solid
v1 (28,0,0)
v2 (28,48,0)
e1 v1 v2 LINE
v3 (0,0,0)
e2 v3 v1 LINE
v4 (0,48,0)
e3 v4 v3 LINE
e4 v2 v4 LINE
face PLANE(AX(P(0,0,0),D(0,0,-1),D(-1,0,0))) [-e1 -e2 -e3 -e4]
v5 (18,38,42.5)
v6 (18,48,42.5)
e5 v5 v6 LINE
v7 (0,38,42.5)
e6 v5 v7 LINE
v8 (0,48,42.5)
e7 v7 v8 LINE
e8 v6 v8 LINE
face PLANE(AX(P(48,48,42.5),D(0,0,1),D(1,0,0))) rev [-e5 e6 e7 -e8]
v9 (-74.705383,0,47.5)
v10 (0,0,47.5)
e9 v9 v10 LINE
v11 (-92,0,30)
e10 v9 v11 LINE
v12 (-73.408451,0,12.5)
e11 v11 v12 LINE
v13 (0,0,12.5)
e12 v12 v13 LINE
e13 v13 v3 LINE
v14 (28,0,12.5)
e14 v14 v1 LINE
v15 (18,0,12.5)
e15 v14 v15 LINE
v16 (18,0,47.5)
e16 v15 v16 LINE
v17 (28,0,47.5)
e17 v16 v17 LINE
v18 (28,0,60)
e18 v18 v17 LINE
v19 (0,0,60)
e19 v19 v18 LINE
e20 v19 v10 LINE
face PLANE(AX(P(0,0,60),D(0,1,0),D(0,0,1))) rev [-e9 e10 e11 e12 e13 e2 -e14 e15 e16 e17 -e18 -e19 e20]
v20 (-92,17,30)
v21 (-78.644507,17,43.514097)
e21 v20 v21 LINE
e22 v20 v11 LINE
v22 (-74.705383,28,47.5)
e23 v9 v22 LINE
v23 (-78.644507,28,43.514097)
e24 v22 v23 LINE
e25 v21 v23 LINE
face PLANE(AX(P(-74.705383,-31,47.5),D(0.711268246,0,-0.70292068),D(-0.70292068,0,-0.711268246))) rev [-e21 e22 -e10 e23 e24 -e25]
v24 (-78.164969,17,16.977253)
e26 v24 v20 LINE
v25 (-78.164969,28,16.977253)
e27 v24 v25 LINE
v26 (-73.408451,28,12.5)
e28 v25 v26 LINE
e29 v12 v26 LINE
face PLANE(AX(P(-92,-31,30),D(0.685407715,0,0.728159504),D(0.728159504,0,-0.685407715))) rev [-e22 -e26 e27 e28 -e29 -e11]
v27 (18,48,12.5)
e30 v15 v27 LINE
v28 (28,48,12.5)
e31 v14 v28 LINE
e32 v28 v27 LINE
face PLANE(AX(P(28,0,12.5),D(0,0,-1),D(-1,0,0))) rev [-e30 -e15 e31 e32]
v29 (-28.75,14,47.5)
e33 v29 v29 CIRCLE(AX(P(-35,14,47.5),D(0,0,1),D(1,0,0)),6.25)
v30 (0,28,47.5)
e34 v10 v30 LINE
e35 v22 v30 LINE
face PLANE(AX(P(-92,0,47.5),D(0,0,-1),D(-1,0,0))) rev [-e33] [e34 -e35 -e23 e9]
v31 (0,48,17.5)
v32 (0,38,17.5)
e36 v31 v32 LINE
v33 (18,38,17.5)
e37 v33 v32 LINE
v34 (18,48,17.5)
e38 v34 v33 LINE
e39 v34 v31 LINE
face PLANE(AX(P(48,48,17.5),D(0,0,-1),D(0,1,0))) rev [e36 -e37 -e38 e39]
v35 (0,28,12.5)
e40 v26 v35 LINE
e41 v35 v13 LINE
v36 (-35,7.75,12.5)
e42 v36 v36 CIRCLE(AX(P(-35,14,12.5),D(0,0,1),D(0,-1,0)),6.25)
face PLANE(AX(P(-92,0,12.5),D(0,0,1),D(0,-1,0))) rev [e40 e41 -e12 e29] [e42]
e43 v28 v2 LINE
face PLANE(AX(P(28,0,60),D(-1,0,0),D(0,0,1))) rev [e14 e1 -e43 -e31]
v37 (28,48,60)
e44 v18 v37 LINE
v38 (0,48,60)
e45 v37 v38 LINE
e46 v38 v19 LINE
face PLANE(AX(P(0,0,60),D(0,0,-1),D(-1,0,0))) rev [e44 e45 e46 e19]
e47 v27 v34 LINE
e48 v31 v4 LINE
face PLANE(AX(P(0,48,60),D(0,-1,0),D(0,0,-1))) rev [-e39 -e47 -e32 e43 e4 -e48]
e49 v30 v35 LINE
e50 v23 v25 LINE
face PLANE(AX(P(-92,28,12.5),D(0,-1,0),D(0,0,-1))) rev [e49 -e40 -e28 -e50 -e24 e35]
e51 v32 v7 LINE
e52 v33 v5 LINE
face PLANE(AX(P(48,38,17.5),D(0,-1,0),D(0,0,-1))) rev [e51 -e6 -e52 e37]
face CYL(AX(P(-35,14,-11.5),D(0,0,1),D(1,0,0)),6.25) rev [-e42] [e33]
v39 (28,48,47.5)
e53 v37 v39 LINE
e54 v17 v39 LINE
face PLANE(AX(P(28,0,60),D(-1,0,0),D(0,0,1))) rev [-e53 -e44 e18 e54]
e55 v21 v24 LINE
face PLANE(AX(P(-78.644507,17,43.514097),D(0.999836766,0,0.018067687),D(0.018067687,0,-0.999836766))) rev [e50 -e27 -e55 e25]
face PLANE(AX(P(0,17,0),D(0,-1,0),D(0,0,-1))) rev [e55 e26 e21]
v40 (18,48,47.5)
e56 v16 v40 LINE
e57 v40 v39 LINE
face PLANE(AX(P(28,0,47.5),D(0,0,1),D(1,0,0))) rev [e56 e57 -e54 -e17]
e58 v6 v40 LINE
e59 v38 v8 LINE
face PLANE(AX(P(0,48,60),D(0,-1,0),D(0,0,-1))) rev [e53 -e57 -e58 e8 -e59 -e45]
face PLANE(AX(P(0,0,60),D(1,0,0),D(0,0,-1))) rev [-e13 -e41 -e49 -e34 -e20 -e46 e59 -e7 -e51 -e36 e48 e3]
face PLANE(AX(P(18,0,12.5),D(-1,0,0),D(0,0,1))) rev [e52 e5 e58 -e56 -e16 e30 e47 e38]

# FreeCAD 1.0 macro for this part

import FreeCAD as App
import Part
import Sketcher
Q = App.Units.Quantity


def add_polygon(sketch, points):
    """Adds a closed chain of lines whose ends are joined by coincident constraints."""
    first, n = sketch.GeometryCount, len(points)
    for a, b in zip(points, points[1:] + points[:1]):
        sketch.addGeometry(Part.LineSegment(App.Vector(*a, 0), App.Vector(*b, 0)), False)
    for i in range(n):
        sketch.addConstraint(Sketcher.Constraint("Coincident", first + i, 2, first + (i + 1) % n, 1))

doc = App.newDocument("Part")
body = doc.addObject("PartDesign::Body", "Body")

# Sketch on XY plane
sketch1 = body.newObject("Sketcher::SketchObject", "Sketch")
sketch1.AttachmentSupport = (doc.getObject("XY_Plane"), [""])
sketch1.MapMode = "FlatFace"
add_polygon(sketch1, [(0, 48), (0, 0), (28, 0), (28, 48)])  # lines 0-3
sketch1.addConstraint(Sketcher.Constraint("Vertical", 0))
sketch1.addConstraint(Sketcher.Constraint("Horizontal", 1))
sketch1.addConstraint(Sketcher.Constraint("Vertical", 2))
sketch1.addConstraint(Sketcher.Constraint("Horizontal", 3))
sketch1.addConstraint(Sketcher.Constraint("Coincident", 0, 2, -1, 1))
sketch1.addConstraint(Sketcher.Constraint("DistanceX", 1, 1, 1, 2, Q("28 mm")))
sketch1.addConstraint(Sketcher.Constraint("DistanceY", 0, 2, 0, 1, Q("48 mm")))
pad1 = body.newObject("PartDesign::Pad", "Pad")
pad1.Profile = sketch1
pad1.Length = 60

# Sketch on XZ plane
sketch2 = body.newObject("Sketcher::SketchObject", "Sketch001")
sketch2.AttachmentSupport = (doc.getObject("XZ_Plane"), [""])
sketch2.MapMode = "FlatFace"
sketch2.AttachmentOffset = App.Placement(App.Vector(0, 0, -48), App.Rotation())
add_polygon(sketch2, [(18, 12), (18, 48), (28, 48), (28, 12)])  # lines 0-3
sketch2.addConstraint(Sketcher.Constraint("Vertical", 0))
sketch2.addConstraint(Sketcher.Constraint("Horizontal", 1))
sketch2.addConstraint(Sketcher.Constraint("Vertical", 2))
sketch2.addConstraint(Sketcher.Constraint("Horizontal", 3))
sketch2.addConstraint(Sketcher.Constraint("DistanceX", 1, 1, 1, 2, Q("10 mm")))
sketch2.addConstraint(Sketcher.Constraint("DistanceY", 0, 1, 0, 2, Q("35 mm")))
sketch2.addConstraint(Sketcher.Constraint("DistanceX", -1, 1, 0, 2, Q("18 mm")))
sketch2.addConstraint(Sketcher.Constraint("DistanceY", -1, 1, 0, 2, Q("47.5 mm")))
pocket1 = body.newObject("PartDesign::Pocket", "Pocket")
pocket1.Profile = sketch2
pocket1.Length = 48
pocket1.Reversed = True

# Sketch on YZ plane
sketch3 = body.newObject("Sketcher::SketchObject", "Sketch002")
sketch3.AttachmentSupport = (doc.getObject("YZ_Plane"), [""])
sketch3.MapMode = "FlatFace"
add_polygon(sketch3, [(48, 18), (38, 18), (38, 42), (48, 42)])  # lines 0-3
sketch3.addConstraint(Sketcher.Constraint("Horizontal", 0))
sketch3.addConstraint(Sketcher.Constraint("Vertical", 1))
sketch3.addConstraint(Sketcher.Constraint("Horizontal", 2))
sketch3.addConstraint(Sketcher.Constraint("Vertical", 3))
sketch3.addConstraint(Sketcher.Constraint("DistanceX", 0, 2, 0, 1, Q("10 mm")))
sketch3.addConstraint(Sketcher.Constraint("DistanceY", 1, 1, 1, 2, Q("25 mm")))
sketch3.addConstraint(Sketcher.Constraint("DistanceX", -1, 1, 0, 2, Q("38 mm")))
sketch3.addConstraint(Sketcher.Constraint("DistanceY", -1, 1, 0, 2, Q("17.5 mm")))
pocket2 = body.newObject("PartDesign::Pocket", "Pocket001")
pocket2.Profile = sketch3
pocket2.Length = 48
pocket2.Reversed = True

# Sketch on YZ plane
sketch4 = body.newObject("Sketcher::SketchObject", "Sketch003")
sketch4.AttachmentSupport = (doc.getObject("YZ_Plane"), [""])
sketch4.MapMode = "FlatFace"
add_polygon(sketch4, [(28, 12), (0, 12), (0, 48), (28, 48)])  # lines 0-3
sketch4.addConstraint(Sketcher.Constraint("Horizontal", 0))
sketch4.addConstraint(Sketcher.Constraint("Vertical", 1))
sketch4.addConstraint(Sketcher.Constraint("Horizontal", 2))
sketch4.addConstraint(Sketcher.Constraint("Vertical", 3))
sketch4.addConstraint(Sketcher.Constraint("PointOnObject", 0, 2, -2))
sketch4.addConstraint(Sketcher.Constraint("DistanceX", 0, 2, 0, 1, Q("28 mm")))
sketch4.addConstraint(Sketcher.Constraint("DistanceY", 1, 1, 1, 2, Q("35 mm")))
sketch4.addConstraint(Sketcher.Constraint("DistanceY", -1, 1, 0, 2, Q("12.5 mm")))
pad2 = body.newObject("PartDesign::Pad", "Pad001")
pad2.Profile = sketch4
pad2.Length = 92
pad2.Reversed = True

# Sketch on XY plane
sketch5 = body.newObject("Sketcher::SketchObject", "Sketch004")
sketch5.AttachmentSupport = (doc.getObject("XY_Plane"), [""])
sketch5.MapMode = "FlatFace"
sketch5.AttachmentOffset = App.Placement(App.Vector(0, 0, 47.5), App.Rotation())
sketch5.addGeometry(Part.Circle(App.Vector(-35, 14, 0), App.Vector(0, 0, 1), 6), False)
sketch5.addConstraint(Sketcher.Constraint("Diameter", 0, Q("12.5 mm")))
sketch5.addConstraint(Sketcher.Constraint("DistanceX", 0, 3, -1, 1, Q("35 mm")))
sketch5.addConstraint(Sketcher.Constraint("DistanceY", -1, 1, 0, 3, Q("14 mm")))
pocket3 = body.newObject("PartDesign::Pocket", "Pocket002")
pocket3.Profile = sketch5
pocket3.Length = 59

# Sketch on XZ plane
sketch6 = body.newObject("Sketcher::SketchObject", "Sketch005")
sketch6.AttachmentSupport = (doc.getObject("XZ_Plane"), [""])
sketch6.MapMode = "FlatFace"
sketch6.AttachmentOffset = App.Placement(App.Vector(0, 0, -28), App.Rotation())
add_polygon(sketch6, [(-92, 30), (-73, 12), (-92, 12)])  # lines 0-2
sketch6.addConstraint(Sketcher.Constraint("Horizontal", 1))
sketch6.addConstraint(Sketcher.Constraint("Vertical", 2))
sketch6.addConstraint(Sketcher.Constraint("DistanceY", 2, 1, 2, 2, Q("17.5 mm")))
sketch6.addConstraint(Sketcher.Constraint("DistanceX", 1, 2, -1, 1, Q("92 mm")))
sketch6.addConstraint(Sketcher.Constraint("DistanceY", -1, 1, 2, 2, Q("30 mm")))
sketch6.addConstraint(Sketcher.Constraint("DistanceX", 1, 2, 1, 1, Q("18.591549 mm")))
pocket4 = body.newObject("PartDesign::Pocket", "Pocket003")
pocket4.Profile = sketch6
pocket4.Length = 59
pocket4.Reversed = True

# Sketch on XZ plane
sketch7 = body.newObject("Sketcher::SketchObject", "Sketch006")
sketch7.AttachmentSupport = (doc.getObject("XZ_Plane"), [""])
sketch7.MapMode = "FlatFace"
sketch7.AttachmentOffset = App.Placement(App.Vector(0, 0, -28), App.Rotation())
add_polygon(sketch7, [(-92, 30), (-92, 48), (-75, 48)])  # lines 0-2
sketch7.addConstraint(Sketcher.Constraint("Vertical", 0))
sketch7.addConstraint(Sketcher.Constraint("Horizontal", 1))
sketch7.addConstraint(Sketcher.Constraint("DistanceY", 0, 1, 0, 2, Q("17.5 mm")))
sketch7.addConstraint(Sketcher.Constraint("DistanceX", 0, 2, -1, 1, Q("92 mm")))
sketch7.addConstraint(Sketcher.Constraint("DistanceY", -1, 1, 2, 2, Q("30 mm")))
sketch7.addConstraint(Sketcher.Constraint("Distance", 2, Q("24.603938 mm")))
pocket5 = body.newObject("PartDesign::Pocket", "Pocket004")
pocket5.Profile = sketch7
pocket5.Length = 59
pocket5.Reversed = True

# Sketch on XZ plane
sketch8 = body.newObject("Sketcher::SketchObject", "Sketch007")
sketch8.AttachmentSupport = (doc.getObject("XZ_Plane"), [""])
sketch8.MapMode = "FlatFace"
sketch8.AttachmentOffset = App.Placement(App.Vector(0, 0, -28), App.Rotation())
add_polygon(sketch8, [(-92, 30), (-79, 44), (-78, 17)])  # lines 0-2
sketch8.addConstraint(Sketcher.Constraint("Equal", 0, 2))
sketch8.addConstraint(Sketcher.Constraint("Distance", 0, Q("19 mm")))
sketch8.addConstraint(Sketcher.Constraint("DistanceX", 2, 2, -1, 1, Q("92 mm")))
sketch8.addConstraint(Sketcher.Constraint("DistanceY", -1, 1, 2, 2, Q("30 mm")))
sketch8.addConstraint(Sketcher.Constraint("DistanceX", 1, 2, -1, 1, Q("78.164969 mm")))
sketch8.addConstraint(Sketcher.Constraint("Distance", 1, Q("26.541176 mm")))
pocket6 = body.newObject("PartDesign::Pocket", "Pocket005")
pocket6.Profile = sketch8
pocket6.Length = 11
pocket6.Reversed = True

doc.recompute()
